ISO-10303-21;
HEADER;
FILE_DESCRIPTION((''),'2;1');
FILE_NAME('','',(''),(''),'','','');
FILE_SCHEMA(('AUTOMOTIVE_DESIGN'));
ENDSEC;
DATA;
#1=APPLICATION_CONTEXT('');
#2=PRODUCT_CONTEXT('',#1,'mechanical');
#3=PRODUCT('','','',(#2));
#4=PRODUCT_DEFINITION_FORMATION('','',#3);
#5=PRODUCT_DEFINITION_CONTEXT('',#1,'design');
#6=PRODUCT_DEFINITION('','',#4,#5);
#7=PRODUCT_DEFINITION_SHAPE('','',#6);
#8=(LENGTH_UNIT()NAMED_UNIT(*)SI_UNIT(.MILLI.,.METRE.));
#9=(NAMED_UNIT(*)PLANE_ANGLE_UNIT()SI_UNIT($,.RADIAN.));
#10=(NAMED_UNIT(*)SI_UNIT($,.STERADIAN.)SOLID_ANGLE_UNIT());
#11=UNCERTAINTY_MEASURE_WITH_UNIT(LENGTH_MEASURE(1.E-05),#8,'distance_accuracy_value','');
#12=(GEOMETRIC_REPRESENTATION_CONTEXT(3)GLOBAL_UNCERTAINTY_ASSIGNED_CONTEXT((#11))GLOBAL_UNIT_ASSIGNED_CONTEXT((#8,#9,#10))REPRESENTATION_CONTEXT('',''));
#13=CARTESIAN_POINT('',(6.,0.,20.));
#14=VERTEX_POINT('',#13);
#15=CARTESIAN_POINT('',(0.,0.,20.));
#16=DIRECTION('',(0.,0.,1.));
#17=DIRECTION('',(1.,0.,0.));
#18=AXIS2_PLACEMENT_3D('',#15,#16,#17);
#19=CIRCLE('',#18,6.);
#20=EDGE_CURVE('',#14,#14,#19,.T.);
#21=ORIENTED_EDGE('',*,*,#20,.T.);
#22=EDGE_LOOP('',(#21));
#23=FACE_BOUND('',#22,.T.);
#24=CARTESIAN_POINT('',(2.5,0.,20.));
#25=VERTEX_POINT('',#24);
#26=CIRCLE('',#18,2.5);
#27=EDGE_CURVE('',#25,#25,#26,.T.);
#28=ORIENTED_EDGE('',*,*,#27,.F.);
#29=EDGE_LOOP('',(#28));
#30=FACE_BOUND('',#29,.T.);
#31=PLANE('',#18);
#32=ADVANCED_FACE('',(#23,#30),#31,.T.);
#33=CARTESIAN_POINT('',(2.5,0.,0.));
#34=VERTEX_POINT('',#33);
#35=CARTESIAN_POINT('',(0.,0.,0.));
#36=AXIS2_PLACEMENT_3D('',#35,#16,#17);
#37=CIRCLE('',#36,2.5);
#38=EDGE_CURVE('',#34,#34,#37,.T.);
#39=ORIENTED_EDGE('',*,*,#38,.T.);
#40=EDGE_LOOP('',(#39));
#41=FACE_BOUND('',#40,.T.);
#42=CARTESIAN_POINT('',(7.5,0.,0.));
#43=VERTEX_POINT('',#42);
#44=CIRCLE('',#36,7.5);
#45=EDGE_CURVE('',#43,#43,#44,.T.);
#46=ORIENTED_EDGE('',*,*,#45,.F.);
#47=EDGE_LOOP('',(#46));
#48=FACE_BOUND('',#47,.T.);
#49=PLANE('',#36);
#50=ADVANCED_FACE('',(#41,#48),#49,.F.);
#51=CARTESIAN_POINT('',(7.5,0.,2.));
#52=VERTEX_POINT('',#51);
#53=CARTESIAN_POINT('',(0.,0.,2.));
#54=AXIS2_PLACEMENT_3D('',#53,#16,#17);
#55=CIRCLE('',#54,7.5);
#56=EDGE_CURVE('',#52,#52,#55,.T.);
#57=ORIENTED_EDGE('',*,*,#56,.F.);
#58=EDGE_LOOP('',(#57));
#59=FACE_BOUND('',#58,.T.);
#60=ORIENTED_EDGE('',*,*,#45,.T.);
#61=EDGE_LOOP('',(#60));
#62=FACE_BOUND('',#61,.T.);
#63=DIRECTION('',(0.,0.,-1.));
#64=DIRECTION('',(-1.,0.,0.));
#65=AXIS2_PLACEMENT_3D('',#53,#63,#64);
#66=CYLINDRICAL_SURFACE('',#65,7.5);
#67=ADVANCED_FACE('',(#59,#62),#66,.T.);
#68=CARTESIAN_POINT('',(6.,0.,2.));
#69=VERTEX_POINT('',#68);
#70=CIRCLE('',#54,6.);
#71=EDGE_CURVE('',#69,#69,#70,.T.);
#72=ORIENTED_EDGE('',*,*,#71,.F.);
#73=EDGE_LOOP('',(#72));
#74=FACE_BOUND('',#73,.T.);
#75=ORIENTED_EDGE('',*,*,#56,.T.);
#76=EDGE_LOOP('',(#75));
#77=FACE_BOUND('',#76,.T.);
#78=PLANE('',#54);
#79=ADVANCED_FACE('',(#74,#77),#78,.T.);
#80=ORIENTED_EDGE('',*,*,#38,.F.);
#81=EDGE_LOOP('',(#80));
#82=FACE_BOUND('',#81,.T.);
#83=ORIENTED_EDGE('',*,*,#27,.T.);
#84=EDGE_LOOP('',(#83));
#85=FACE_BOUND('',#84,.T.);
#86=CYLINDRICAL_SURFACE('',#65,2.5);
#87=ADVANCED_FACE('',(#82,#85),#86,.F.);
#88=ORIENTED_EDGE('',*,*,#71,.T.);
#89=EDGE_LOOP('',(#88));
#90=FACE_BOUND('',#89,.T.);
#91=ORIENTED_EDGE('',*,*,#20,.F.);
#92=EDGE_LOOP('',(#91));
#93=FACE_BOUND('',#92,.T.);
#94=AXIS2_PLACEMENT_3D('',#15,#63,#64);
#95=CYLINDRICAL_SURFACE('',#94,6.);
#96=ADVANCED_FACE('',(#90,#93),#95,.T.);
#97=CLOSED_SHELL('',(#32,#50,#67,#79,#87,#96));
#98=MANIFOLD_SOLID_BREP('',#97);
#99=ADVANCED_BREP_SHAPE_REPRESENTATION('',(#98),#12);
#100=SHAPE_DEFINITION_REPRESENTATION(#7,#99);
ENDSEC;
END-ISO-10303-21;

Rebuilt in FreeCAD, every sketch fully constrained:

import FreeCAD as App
import Part
import Sketcher

V = App.Vector
Q = App.Units.Quantity

doc = App.newDocument("Part")
params = doc.addObject("Spreadsheet::Sheet", "Params")
for row, (alias, value) in enumerate([
    ("sketch1_diameter", "15 mm"),
    ("sketch1_diameter2", "5 mm"),
    ("pad1_length", "2 mm"),
    ("sketch2_diameter", "12 mm"),
    ("sketch2_diameter2", "5 mm"),
    ("pad2_length", "18 mm"),
], start=1):
    params.set(f"A{row}", alias)
    params.set(f"B{row}", "=" + value)
    params.setAlias(f"B{row}", alias)

body = doc.addObject("PartDesign::Body", "Body")

# Sketch on XY plane
sketch1 = doc.addObject("Sketcher::SketchObject", "Sketch")
body.addObject(sketch1)
sketch1.AttachmentSupport = (doc.XY_Plane, [""])
sketch1.MapMode = "FlatFace"
sketch1.addGeometry(Part.Circle(V(0, 0, 0), V(0, 0, 1), 7.5), False)
sketch1.addGeometry(Part.Circle(V(0, 0, 0), V(0, 0, 1), 2.5), False)
sketch1.addConstraint(Sketcher.Constraint("Coincident", 0, 3, -1, 1))
sketch1.addConstraint(Sketcher.Constraint("Coincident", 1, 3, -1, 1))
sketch1.addConstraint(Sketcher.Constraint("Diameter", 0, Q("15 mm")))
sketch1.addConstraint(Sketcher.Constraint("Diameter", 1, Q("5 mm")))
sketch1.setExpression("Constraints[2]", "Params.sketch1_diameter")
sketch1.setExpression("Constraints[3]", "Params.sketch1_diameter2")
pad1 = doc.addObject("PartDesign::Pad", "Pad")
body.addObject(pad1)
pad1.Profile = sketch1
pad1.setExpression("Length", "Params.pad1_length")

# Sketch on XY plane
sketch2 = doc.addObject("Sketcher::SketchObject", "Sketch001")
body.addObject(sketch2)
sketch2.AttachmentSupport = (doc.XY_Plane, [""])
sketch2.MapMode = "FlatFace"
sketch2.AttachmentOffset = App.Placement(V(0, 0, 2), App.Rotation())
sketch2.addGeometry(Part.Circle(V(0, 0, 0), V(0, 0, 1), 6), False)
sketch2.addGeometry(Part.Circle(V(0, 0, 0), V(0, 0, 1), 2.5), False)
sketch2.addConstraint(Sketcher.Constraint("Coincident", 0, 3, -1, 1))
sketch2.addConstraint(Sketcher.Constraint("Coincident", 1, 3, -1, 1))
sketch2.addConstraint(Sketcher.Constraint("Diameter", 0, Q("12 mm")))
sketch2.addConstraint(Sketcher.Constraint("Diameter", 1, Q("5 mm")))
sketch2.setExpression("Constraints[2]", "Params.sketch2_diameter")
sketch2.setExpression("Constraints[3]", "Params.sketch2_diameter2")
pad2 = doc.addObject("PartDesign::Pad", "Pad001")
body.addObject(pad2)
pad2.Profile = sketch2
pad2.setExpression("Length", "Params.pad2_length")

doc.recompute()
